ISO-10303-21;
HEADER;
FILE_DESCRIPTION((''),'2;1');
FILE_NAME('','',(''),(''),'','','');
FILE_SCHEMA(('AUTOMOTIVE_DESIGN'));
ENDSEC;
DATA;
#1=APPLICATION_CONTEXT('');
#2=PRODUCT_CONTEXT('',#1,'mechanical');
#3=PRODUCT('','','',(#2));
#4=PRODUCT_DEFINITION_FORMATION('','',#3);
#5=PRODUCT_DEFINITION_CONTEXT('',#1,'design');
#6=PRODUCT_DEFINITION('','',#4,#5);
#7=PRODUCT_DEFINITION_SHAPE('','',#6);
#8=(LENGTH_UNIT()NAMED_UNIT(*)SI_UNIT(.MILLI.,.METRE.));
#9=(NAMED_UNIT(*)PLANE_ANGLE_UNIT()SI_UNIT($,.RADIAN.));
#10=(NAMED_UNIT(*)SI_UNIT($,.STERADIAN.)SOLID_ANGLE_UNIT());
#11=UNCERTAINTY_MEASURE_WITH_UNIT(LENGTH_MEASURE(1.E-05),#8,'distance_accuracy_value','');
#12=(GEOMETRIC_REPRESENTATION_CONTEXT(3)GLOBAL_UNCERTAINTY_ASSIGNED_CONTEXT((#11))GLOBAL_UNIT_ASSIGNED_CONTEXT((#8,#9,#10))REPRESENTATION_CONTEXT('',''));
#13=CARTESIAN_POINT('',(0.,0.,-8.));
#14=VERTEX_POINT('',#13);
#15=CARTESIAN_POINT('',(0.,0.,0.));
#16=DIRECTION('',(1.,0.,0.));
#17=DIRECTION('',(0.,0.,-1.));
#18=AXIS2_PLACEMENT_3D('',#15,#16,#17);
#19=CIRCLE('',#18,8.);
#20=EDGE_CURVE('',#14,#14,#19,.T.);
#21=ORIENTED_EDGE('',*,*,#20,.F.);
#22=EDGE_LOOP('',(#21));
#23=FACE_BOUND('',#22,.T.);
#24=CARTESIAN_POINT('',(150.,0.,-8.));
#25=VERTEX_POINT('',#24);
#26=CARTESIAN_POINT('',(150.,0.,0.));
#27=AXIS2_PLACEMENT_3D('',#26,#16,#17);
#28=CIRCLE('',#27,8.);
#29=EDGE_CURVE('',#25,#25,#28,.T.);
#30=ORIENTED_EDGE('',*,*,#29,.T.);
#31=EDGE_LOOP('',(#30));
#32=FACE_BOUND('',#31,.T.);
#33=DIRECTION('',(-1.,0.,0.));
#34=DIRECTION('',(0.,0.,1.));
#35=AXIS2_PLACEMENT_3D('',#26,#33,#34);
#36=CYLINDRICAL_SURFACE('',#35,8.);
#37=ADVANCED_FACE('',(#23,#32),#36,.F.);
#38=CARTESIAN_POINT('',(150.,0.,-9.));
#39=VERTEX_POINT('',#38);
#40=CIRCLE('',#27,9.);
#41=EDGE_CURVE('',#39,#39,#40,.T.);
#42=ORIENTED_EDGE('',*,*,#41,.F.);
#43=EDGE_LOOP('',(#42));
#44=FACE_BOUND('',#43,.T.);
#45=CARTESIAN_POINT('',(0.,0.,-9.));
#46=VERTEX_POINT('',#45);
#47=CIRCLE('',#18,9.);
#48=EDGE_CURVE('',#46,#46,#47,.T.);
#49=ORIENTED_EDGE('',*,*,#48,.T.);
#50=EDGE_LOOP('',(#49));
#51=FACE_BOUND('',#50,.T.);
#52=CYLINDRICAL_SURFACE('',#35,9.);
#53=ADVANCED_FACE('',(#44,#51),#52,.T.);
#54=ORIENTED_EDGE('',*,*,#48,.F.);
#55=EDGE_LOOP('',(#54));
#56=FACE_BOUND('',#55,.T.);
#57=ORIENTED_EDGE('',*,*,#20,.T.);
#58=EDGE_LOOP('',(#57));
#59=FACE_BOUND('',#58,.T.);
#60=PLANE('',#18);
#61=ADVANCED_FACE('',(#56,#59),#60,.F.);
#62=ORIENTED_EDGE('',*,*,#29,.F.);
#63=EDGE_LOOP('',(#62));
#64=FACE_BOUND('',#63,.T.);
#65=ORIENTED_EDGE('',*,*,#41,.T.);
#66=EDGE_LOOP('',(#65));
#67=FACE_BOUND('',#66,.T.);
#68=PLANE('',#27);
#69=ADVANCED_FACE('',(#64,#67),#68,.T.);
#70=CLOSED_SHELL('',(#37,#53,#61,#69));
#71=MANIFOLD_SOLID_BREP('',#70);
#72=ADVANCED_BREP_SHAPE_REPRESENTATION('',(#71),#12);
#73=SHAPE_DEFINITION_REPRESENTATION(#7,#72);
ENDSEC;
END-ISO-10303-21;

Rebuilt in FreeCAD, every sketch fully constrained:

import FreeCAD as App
import Part
import Sketcher

V = App.Vector

doc = App.newDocument("Part")
body = doc.addObject("PartDesign::Body", "Body")

# Sketch on YZ plane
sketch1 = doc.addObject("Sketcher::SketchObject", "Sketch")
body.addObject(sketch1)
sketch1.AttachmentSupport = (doc.YZ_Plane, [""])
sketch1.MapMode = "FlatFace"
sketch1.addGeometry([
    Part.Circle(V(0, 0, 0), V(0, 0, 1), 9),
    Part.Circle(V(0, 0, 0), V(0, 0, 1), 8),
], False)
sketch1.addConstraint([
    Sketcher.Constraint("Coincident", 0, 3, -1, 1),
    Sketcher.Constraint("Coincident", 1, 3, -1, 1),
    Sketcher.Constraint("Diameter", 0, 18.0),
    Sketcher.Constraint("Diameter", 1, 16.0),
])
pad1 = doc.addObject("PartDesign::Pad", "Pad")
body.addObject(pad1)
pad1.Profile = sketch1
pad1.Length = 150

doc.recompute()
